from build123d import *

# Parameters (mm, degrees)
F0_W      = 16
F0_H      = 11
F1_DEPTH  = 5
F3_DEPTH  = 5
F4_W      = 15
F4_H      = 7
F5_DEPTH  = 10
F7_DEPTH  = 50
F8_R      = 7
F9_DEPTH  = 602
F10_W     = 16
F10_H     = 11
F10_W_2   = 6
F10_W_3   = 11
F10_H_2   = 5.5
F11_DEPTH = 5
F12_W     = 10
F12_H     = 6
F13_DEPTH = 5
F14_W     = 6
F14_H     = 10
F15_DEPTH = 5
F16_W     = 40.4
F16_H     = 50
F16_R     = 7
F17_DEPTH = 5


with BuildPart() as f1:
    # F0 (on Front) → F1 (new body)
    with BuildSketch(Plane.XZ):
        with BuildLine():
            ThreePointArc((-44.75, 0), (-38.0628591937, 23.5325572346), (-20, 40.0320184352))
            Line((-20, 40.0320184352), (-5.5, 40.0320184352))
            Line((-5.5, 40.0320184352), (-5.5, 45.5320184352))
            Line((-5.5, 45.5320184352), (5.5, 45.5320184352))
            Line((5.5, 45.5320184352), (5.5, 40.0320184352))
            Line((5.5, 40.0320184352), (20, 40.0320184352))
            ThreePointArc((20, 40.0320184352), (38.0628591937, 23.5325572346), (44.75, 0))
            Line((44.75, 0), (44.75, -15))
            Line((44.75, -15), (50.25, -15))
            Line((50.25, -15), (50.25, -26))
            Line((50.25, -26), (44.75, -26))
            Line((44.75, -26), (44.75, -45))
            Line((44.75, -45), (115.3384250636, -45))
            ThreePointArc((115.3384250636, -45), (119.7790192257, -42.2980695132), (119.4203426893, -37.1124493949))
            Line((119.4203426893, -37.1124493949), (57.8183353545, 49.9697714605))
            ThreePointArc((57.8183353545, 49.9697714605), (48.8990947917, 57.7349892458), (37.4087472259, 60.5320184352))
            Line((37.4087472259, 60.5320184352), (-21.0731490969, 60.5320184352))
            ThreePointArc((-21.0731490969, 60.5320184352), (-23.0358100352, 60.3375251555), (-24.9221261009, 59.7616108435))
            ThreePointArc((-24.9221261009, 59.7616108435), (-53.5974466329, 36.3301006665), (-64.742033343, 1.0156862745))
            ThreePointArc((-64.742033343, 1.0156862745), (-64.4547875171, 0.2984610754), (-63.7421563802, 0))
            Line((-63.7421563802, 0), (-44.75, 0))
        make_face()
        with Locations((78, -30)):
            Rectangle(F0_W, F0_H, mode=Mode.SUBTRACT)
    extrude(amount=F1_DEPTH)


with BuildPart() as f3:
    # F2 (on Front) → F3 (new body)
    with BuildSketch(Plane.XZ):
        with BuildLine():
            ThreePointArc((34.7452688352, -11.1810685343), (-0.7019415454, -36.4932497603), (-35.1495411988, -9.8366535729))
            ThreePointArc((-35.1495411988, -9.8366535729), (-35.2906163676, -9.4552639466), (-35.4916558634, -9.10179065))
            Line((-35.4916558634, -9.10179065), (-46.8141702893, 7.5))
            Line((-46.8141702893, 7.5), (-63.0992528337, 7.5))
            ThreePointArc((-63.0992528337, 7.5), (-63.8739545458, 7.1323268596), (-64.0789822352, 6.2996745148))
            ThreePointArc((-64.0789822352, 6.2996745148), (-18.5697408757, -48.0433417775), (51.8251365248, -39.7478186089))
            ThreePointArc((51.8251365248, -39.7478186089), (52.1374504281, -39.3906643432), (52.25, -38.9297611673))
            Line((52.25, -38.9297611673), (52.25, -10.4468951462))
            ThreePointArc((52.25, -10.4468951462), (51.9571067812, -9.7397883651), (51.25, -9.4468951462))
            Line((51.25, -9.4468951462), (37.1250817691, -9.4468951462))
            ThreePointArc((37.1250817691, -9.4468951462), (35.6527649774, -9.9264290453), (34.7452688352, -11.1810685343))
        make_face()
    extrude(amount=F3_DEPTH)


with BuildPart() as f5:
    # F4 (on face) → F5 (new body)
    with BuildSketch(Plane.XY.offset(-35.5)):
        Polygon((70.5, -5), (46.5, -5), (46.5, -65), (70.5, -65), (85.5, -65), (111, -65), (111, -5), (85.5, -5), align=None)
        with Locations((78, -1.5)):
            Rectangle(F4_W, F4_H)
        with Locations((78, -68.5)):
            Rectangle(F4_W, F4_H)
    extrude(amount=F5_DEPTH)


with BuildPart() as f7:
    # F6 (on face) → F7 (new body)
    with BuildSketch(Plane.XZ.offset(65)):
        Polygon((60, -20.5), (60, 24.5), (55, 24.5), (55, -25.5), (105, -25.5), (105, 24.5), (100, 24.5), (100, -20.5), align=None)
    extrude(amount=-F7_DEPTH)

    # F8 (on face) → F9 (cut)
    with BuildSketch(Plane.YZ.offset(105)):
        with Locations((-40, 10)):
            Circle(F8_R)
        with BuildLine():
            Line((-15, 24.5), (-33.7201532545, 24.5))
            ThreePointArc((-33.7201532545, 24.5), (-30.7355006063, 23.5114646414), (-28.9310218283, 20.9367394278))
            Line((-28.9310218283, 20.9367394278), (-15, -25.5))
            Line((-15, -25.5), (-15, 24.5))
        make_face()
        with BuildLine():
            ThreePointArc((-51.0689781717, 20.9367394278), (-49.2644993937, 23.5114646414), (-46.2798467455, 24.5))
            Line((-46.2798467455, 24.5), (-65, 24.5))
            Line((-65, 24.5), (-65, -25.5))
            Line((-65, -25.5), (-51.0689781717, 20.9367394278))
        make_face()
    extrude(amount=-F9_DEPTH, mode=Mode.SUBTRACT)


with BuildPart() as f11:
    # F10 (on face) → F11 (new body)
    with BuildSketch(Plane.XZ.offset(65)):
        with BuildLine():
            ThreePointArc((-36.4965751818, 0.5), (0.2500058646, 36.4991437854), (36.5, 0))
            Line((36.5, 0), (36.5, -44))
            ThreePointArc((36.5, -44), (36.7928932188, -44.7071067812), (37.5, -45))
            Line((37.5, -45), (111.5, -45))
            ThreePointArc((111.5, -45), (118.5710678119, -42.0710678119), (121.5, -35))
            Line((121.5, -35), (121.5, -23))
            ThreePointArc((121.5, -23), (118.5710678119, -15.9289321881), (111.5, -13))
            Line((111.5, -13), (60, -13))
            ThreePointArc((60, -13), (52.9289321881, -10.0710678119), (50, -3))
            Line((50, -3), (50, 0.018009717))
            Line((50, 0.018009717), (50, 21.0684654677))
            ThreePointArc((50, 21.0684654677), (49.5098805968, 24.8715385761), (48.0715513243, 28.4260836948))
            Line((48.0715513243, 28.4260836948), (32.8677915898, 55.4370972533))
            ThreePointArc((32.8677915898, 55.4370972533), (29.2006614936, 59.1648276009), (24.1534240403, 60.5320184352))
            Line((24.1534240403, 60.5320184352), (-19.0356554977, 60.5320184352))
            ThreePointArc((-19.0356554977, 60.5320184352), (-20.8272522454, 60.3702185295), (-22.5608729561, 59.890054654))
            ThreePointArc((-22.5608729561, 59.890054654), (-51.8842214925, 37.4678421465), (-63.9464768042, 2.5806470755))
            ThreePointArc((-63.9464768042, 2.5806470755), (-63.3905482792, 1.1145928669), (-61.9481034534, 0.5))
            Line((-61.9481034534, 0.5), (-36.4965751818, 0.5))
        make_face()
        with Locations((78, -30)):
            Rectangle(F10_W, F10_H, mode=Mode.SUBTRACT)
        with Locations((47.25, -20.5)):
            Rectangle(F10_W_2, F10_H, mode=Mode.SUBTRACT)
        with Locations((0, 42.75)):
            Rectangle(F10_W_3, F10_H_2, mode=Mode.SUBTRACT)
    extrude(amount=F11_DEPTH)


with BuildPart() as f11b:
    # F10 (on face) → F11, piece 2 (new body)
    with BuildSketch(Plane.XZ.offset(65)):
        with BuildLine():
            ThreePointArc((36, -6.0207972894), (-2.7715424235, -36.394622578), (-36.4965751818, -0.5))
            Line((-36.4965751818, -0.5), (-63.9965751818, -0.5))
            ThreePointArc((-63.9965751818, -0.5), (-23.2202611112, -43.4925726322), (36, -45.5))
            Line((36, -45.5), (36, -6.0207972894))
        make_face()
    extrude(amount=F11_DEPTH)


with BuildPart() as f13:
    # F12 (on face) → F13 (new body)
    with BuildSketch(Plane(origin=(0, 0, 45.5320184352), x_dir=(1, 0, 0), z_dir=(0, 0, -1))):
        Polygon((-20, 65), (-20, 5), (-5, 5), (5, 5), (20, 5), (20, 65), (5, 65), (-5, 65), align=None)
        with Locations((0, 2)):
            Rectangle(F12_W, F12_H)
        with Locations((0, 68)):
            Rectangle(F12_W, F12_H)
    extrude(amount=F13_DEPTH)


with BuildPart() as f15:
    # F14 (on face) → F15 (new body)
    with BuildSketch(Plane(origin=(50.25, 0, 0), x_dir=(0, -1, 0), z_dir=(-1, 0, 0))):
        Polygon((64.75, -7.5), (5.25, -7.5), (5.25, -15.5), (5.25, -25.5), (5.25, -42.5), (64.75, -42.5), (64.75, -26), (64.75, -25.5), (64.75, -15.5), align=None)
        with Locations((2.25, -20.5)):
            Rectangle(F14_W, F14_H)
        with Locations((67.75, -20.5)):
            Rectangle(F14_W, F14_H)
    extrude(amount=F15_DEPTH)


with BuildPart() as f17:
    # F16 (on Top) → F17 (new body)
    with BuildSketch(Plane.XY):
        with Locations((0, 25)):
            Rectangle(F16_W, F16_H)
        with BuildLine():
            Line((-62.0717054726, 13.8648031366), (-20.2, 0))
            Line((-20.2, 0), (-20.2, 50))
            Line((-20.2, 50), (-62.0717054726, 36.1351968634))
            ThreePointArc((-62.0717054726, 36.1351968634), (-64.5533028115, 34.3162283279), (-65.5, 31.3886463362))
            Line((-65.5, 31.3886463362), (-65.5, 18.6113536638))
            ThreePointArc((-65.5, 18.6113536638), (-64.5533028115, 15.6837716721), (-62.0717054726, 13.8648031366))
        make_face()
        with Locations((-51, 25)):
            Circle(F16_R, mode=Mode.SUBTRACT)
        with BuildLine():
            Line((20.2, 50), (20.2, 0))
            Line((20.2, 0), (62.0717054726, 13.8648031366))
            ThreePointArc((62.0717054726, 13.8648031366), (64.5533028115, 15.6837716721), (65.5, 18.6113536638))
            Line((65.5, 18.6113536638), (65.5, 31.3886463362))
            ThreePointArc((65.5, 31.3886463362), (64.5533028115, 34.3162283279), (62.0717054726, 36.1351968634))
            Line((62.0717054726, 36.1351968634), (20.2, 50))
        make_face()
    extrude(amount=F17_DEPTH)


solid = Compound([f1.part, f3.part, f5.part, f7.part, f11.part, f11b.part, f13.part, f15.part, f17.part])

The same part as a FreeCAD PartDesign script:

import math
import FreeCAD as App
import Part
import Sketcher
from FreeCAD import Vector


def add_polygon(sketch, points):
    """Adds a closed chain of lines whose ends are joined by coincident constraints."""
    first, n = sketch.GeometryCount, len(points)
    for a, b in zip(points, points[1:] + points[:1]):
        sketch.addGeometry(Part.LineSegment(App.Vector(*a, 0), App.Vector(*b, 0)), False)
    for i in range(n):
        sketch.addConstraint(Sketcher.Constraint("Coincident", first + i, 2, first + (i + 1) % n, 1))

doc = App.newDocument("Part")
body = doc.addObject("PartDesign::Body", "Body")

# Sketch on XZ plane
sketch1 = body.newObject("Sketcher::SketchObject", "Sketch")
sketch1.AttachmentSupport = (doc.getObject("XZ_Plane"), [""])
sketch1.MapMode = "FlatFace"
sketch1.addGeometry(Part.ArcOfCircle(Part.Circle(Vector(0, 0, 0), Vector(0, 0, 1), 44.8), math.radians(117), math.radians(180)), False)  # 0
sketch1.addGeometry(Part.LineSegment(Vector(-20, 40, 0), Vector(-5.5, 40, 0)), False)  # 1
sketch1.addGeometry(Part.LineSegment(Vector(-5.5, 40, 0), Vector(-5.5, 45.5, 0)), False)  # 2
sketch1.addGeometry(Part.LineSegment(Vector(-5.5, 45.5, 0), Vector(5.5, 45.5, 0)), False)  # 3
sketch1.addGeometry(Part.LineSegment(Vector(5.5, 45.5, 0), Vector(5.5, 40, 0)), False)  # 4
sketch1.addGeometry(Part.LineSegment(Vector(5.5, 40, 0), Vector(20, 40, 0)), False)  # 5
sketch1.addGeometry(Part.ArcOfCircle(Part.Circle(Vector(0, 0, 0), Vector(0, 0, 1), 44.8), math.radians(0), math.radians(63)), False)  # 6
sketch1.addGeometry(Part.LineSegment(Vector(44.8, 0, 0), Vector(44.8, -15, 0)), False)  # 7
sketch1.addGeometry(Part.LineSegment(Vector(44.8, -15, 0), Vector(50.2, -15, 0)), False)  # 8
sketch1.addGeometry(Part.LineSegment(Vector(50.2, -15, 0), Vector(50.2, -26, 0)), False)  # 9
sketch1.addGeometry(Part.LineSegment(Vector(50.2, -26, 0), Vector(44.8, -26, 0)), False)  # 10
sketch1.addGeometry(Part.LineSegment(Vector(44.8, -26, 0), Vector(44.8, -45, 0)), False)  # 11
sketch1.addGeometry(Part.LineSegment(Vector(44.8, -45, 0), Vector(115.3, -45, 0)), False)  # 12
sketch1.addGeometry(Part.ArcOfCircle(Part.Circle(Vector(115.3, -40, 0), Vector(0, 0, 1), 5), math.radians(-90), math.radians(35)), False)  # 13
sketch1.addGeometry(Part.LineSegment(Vector(119.4, -37.1, 0), Vector(57.8, 50, 0)), False)  # 14
sketch1.addGeometry(Part.ArcOfCircle(Part.Circle(Vector(37.4, 35.5, 0), Vector(0, 0, 1), 25), math.radians(35), math.radians(90)), False)  # 15
sketch1.addGeometry(Part.LineSegment(Vector(37.4, 60.5, 0), Vector(-21.1, 60.5, 0)), False)  # 16
sketch1.addGeometry(Part.ArcOfCircle(Part.Circle(Vector(-21.1, 50.5, 0), Vector(0, 0, 1), 10), math.radians(90), math.radians(113)), False)  # 17
sketch1.addGeometry(Part.ArcOfCircle(Part.Circle(Vector(0, 0, 0), Vector(0, 0, 1), 64.8), math.radians(113), math.radians(179)), False)  # 18
sketch1.addGeometry(Part.ArcOfCircle(Part.Circle(Vector(-63.7, 1, 0), Vector(0, 0, 1), 1), math.radians(179), math.radians(270)), False)  # 19
sketch1.addGeometry(Part.LineSegment(Vector(-63.7, 0, 0), Vector(-44.8, 0, 0)), False)  # 20
add_polygon(sketch1, [(86, -35.5), (70, -35.5), (70, -24.5), (86, -24.5)])  # lines 21-24
sketch1.addConstraint([
    Sketcher.Constraint("Coincident", 0, 1, 1, 1),
    Sketcher.Constraint("Coincident", 1, 2, 2, 1),
    Sketcher.Constraint("Coincident", 2, 2, 3, 1),
    Sketcher.Constraint("Coincident", 3, 2, 4, 1),
    Sketcher.Constraint("Coincident", 4, 2, 5, 1),
    Sketcher.Constraint("Coincident", 5, 2, 6, 2),
    Sketcher.Constraint("Tangent", 6, 1, 7, 1),
    Sketcher.Constraint("Coincident", 7, 2, 8, 1),
    Sketcher.Constraint("Coincident", 8, 2, 9, 1),
    Sketcher.Constraint("Coincident", 9, 2, 10, 1),
    Sketcher.Constraint("Coincident", 10, 2, 11, 1),
    Sketcher.Constraint("Coincident", 11, 2, 12, 1),
    Sketcher.Constraint("Tangent", 12, 2, 13, 1),
    Sketcher.Constraint("Tangent", 13, 2, 14, 1),
    Sketcher.Constraint("Tangent", 14, 2, 15, 1),
    Sketcher.Constraint("Tangent", 15, 2, 16, 1),
    Sketcher.Constraint("Tangent", 16, 2, 17, 1),
    Sketcher.Constraint("Tangent", 17, 2, 18, 1),
    Sketcher.Constraint("Tangent", 18, 2, 19, 1),
    Sketcher.Constraint("Tangent", 19, 2, 20, 1),
    Sketcher.Constraint("Coincident", 20, 2, 0, 2),
    Sketcher.Constraint("Horizontal", 1),
    Sketcher.Constraint("Vertical", 2),
    Sketcher.Constraint("Horizontal", 3),
    Sketcher.Constraint("Vertical", 4),
    Sketcher.Constraint("Horizontal", 5),
    Sketcher.Constraint("Vertical", 7),
    Sketcher.Constraint("Horizontal", 8),
    Sketcher.Constraint("Vertical", 9),
    Sketcher.Constraint("Horizontal", 10),
    Sketcher.Constraint("Vertical", 11),
    Sketcher.Constraint("Horizontal", 12),
    Sketcher.Constraint("Horizontal", 16),
    Sketcher.Constraint("Horizontal", 20),
    Sketcher.Constraint("Horizontal", 21),
    Sketcher.Constraint("Vertical", 22),
    Sketcher.Constraint("Horizontal", 23),
    Sketcher.Constraint("Vertical", 24),
    Sketcher.Constraint("Coincident", 0, 3, -1, 1),
    Sketcher.Constraint("Coincident", 6, 3, -1, 1),
    Sketcher.Constraint("Coincident", 18, 3, -1, 1),
    Sketcher.Constraint("Equal", 0, 6),
    Sketcher.Constraint("Symmetric", 1, 2, 4, 2, -2),
    Sketcher.Constraint("PointOnObject", 19, 2, -1),
    Sketcher.Constraint("Vertical", 7, 2, 10, 2),
    Sketcher.Constraint("Equal", 10, 2),
    Sketcher.Constraint("Equal", 3, 9),
    Sketcher.Constraint("Equal", 9, 22),
    Sketcher.Constraint("Radius", 13, 5.0),
    Sketcher.Constraint("Radius", 15, 25.0),
    Sketcher.Constraint("Radius", 17, 10.0),
    Sketcher.Constraint("Radius", 19, 1.0),
    Sketcher.Constraint("DistanceX", 3, 1, 3, 2, 11.0),
    Sketcher.Constraint("DistanceX", 21, 2, 21, 1, 16.0),
    Sketcher.Constraint("DistanceY", 7, 2, 7, 1, 15.0),
    Sketcher.Constraint("DistanceY", 11, 2, 11, 1, 19.0),
    Sketcher.Constraint("Radius", 0, 44.75),
    Sketcher.Constraint("Radius", 18, 64.75),
    Sketcher.Constraint("DistanceX", 1, 1, 1, 2, 14.5),
    Sketcher.Constraint("DistanceX", 8, 1, 8, 2, 5.5),
    Sketcher.Constraint("DistanceX", -1, 1, 21, 2, 70.0),
    Sketcher.Constraint("DistanceY", 2, 2, 17, 3, 5.0),
    Sketcher.Constraint("DistanceY", 21, 2, -1, 1, 35.5),
    Sketcher.Constraint("DistanceX", 12, 1, 12, 2, 70.588425),
    Sketcher.Constraint("DistanceX", 16, 2, 16, 1, 58.481896),
])
pad1 = body.newObject("PartDesign::Pad", "Pad")
pad1.Profile = sketch1
pad1.Length = 5
body2 = doc.addObject("PartDesign::Body", "Body001")

# Sketch on XZ plane
sketch2 = body2.newObject("Sketcher::SketchObject", "Sketch001")
sketch2.AttachmentSupport = (doc.getObject("XZ_Plane001"), [""])
sketch2.MapMode = "FlatFace"
sketch2.addGeometry([
    Part.ArcOfCircle(Part.Circle(Vector(0, 0, 0), Vector(0, 0, 1), 36.5), math.radians(-164), math.radians(-18)),  # 0
    Part.ArcOfCircle(Part.Circle(Vector(-37.6, -10.5, 0), Vector(0, 0, 1), 2.5), math.radians(15.63), math.radians(34.29)),  # 1
    Part.LineSegment(Vector(-35.5, -9.1, 0), Vector(-46.8, 7.5, 0)),  # 2
    Part.LineSegment(Vector(-46.8, 7.5, 0), Vector(-63.1, 7.5, 0)),  # 3
    Part.ArcOfCircle(Part.Circle(Vector(-63.1, 6.5, 0), Vector(0, 0, 1), 1), math.radians(90), math.radians(192)),  # 4
    Part.ArcOfCircle(Part.Circle(Vector(9, 21.2, 0), Vector(0, 0, 1), 74.5), math.radians(-168), math.radians(-55)),  # 5
    Part.ArcOfCircle(Part.Circle(Vector(51.2, -38.9, 0), Vector(0, 0, 1), 1), math.radians(-55), math.radians(0)),  # 6
    Part.LineSegment(Vector(52.2, -38.9, 0), Vector(52.2, -10.4, 0)),  # 7
    Part.ArcOfCircle(Part.Circle(Vector(51.2, -10.4, 0), Vector(0, 0, 1), 1), math.radians(0), math.radians(90)),  # 8
    Part.LineSegment(Vector(51.2, -9.4, 0), Vector(37.1, -9.4, 0)),  # 9
    Part.ArcOfCircle(Part.Circle(Vector(37.1, -11.9, 0), Vector(0, 0, 1), 2.5), math.radians(90), math.radians(162)),  # 10
], False)
sketch2.addConstraint([
    Sketcher.Constraint("Tangent", 0, 1, 1, 1),
    Sketcher.Constraint("Tangent", 1, 2, 2, 1),
    Sketcher.Constraint("Coincident", 2, 2, 3, 1),
    Sketcher.Constraint("Tangent", 3, 2, 4, 1),
    Sketcher.Constraint("Tangent", 4, 2, 5, 1),
    Sketcher.Constraint("Tangent", 5, 2, 6, 1),
    Sketcher.Constraint("Tangent", 6, 2, 7, 1),
    Sketcher.Constraint("Tangent", 7, 2, 8, 1),
    Sketcher.Constraint("Tangent", 8, 2, 9, 1),
    Sketcher.Constraint("Tangent", 9, 2, 10, 1),
    Sketcher.Constraint("Tangent", 10, 2, 0, 2),
    Sketcher.Constraint("Horizontal", 3),
    Sketcher.Constraint("Vertical", 7),
    Sketcher.Constraint("Horizontal", 9),
    Sketcher.Constraint("Coincident", 0, 3, -1, 1),
    Sketcher.Constraint("Equal", 4, 6),
    Sketcher.Constraint("Equal", 6, 8),
    Sketcher.Constraint("Equal", 1, 10),
    Sketcher.Constraint("Radius", 4, 1.0),
    Sketcher.Constraint("Radius", 0, 36.5),
    Sketcher.Constraint("Radius", 1, 2.5),
    Sketcher.Constraint("DistanceY", -1, 1, 4, 3, 6.5),
    Sketcher.Constraint("DistanceX", -1, 1, 6, 3, 51.25),
    Sketcher.Constraint("Radius", 5, 74.542838),
    Sketcher.Constraint("DistanceX", 9, 2, 9, 1, 14.124918),
    Sketcher.Constraint("DistanceY", 1, 3, 5, 3, 31.742902),
    Sketcher.Constraint("DistanceY", 8, 3, 5, 3, 31.6794),
    Sketcher.Constraint("DistanceX", 3, 2, 3, 1, 16.285083),
    Sketcher.Constraint("DistanceY", 7, 1, 7, 2, 28.482866),
])
pad2 = body2.newObject("PartDesign::Pad", "Pad001")
pad2.Profile = sketch2
pad2.Length = 5
body3 = doc.addObject("PartDesign::Body", "Body002")

# Sketch on XY plane
sketch3 = body3.newObject("Sketcher::SketchObject", "Sketch002")
sketch3.AttachmentSupport = (doc.getObject("XY_Plane002"), [""])
sketch3.MapMode = "FlatFace"
sketch3.AttachmentOffset = App.Placement(Vector(0, 0, -35.5), App.Rotation())
add_polygon(sketch3, [(46, -5), (46, -65), (70, -65), (70, -72), (86, -72), (86, -65), (111, -65), (111, -5), (86, -5), (86, 2), (70, 2), (70, -5)])  # lines 0-11
sketch3.addConstraint([
    Sketcher.Constraint("Vertical", 0),
    Sketcher.Constraint("Horizontal", 1),
    Sketcher.Constraint("Vertical", 2),
    Sketcher.Constraint("Horizontal", 3),
    Sketcher.Constraint("Vertical", 4),
    Sketcher.Constraint("Horizontal", 5),
    Sketcher.Constraint("Vertical", 6),
    Sketcher.Constraint("Horizontal", 7),
    Sketcher.Constraint("Vertical", 8),
    Sketcher.Constraint("Horizontal", 9),
    Sketcher.Constraint("Vertical", 10),
    Sketcher.Constraint("Horizontal", 11),
    Sketcher.Constraint("Horizontal", 1, 2, 4, 2),
    Sketcher.Constraint("Horizontal", 7, 2, 10, 2),
    Sketcher.Constraint("Vertical", 4, 2, 7, 2),
    Sketcher.Constraint("Vertical", 2, 2, 9, 2),
    Sketcher.Constraint("Equal", 4, 8),
    Sketcher.Constraint("DistanceX", 1, 1, 1, 2, 24.0),
    Sketcher.Constraint("DistanceX", 3, 1, 3, 2, 15.0),
    Sketcher.Constraint("DistanceY", 0, 2, 0, 1, 60.0),
    Sketcher.Constraint("DistanceY", 2, 2, 2, 1, 7.0),
    Sketcher.Constraint("DistanceX", 5, 1, 5, 2, 25.5),
    Sketcher.Constraint("DistanceY", 0, 2, -1, 1, 65.0),
    Sketcher.Constraint("DistanceX", -1, 1, 5, 2, 111.0),
])
pad3 = body3.newObject("PartDesign::Pad", "Pad002")
pad3.Profile = sketch3
pad3.Length = 10
body4 = doc.addObject("PartDesign::Body", "Body003")

# Sketch on XZ plane
sketch4 = body4.newObject("Sketcher::SketchObject", "Sketch003")
sketch4.AttachmentSupport = (doc.getObject("XZ_Plane003"), [""])
sketch4.MapMode = "FlatFace"
sketch4.AttachmentOffset = App.Placement(Vector(0, 0, 65), App.Rotation())
add_polygon(sketch4, [(60, -20), (60, 24), (55, 24), (55, -26), (105, -26), (105, 24), (100, 24), (100, -20)])  # lines 0-7
sketch4.addConstraint([
    Sketcher.Constraint("Vertical", 0),
    Sketcher.Constraint("Horizontal", 1),
    Sketcher.Constraint("Vertical", 2),
    Sketcher.Constraint("Horizontal", 3),
    Sketcher.Constraint("Vertical", 4),
    Sketcher.Constraint("Horizontal", 5),
    Sketcher.Constraint("Vertical", 6),
    Sketcher.Constraint("Horizontal", 7),
    Sketcher.Constraint("Horizontal", 1, 2, 4, 2),
    Sketcher.Constraint("Equal", 1, 5),
    Sketcher.Constraint("Equal", 3, 2),
    Sketcher.Constraint("DistanceX", 1, 2, 1, 1, 5.0),
    Sketcher.Constraint("DistanceX", 3, 1, 3, 2, 50.0),
    Sketcher.Constraint("DistanceY", 0, 1, 0, 2, 45.0),
    Sketcher.Constraint("DistanceX", -1, 1, 0, 2, 60.0),
    Sketcher.Constraint("DistanceY", -1, 1, 0, 2, 24.5),
])
pad4 = body4.newObject("PartDesign::Pad", "Pad003")
pad4.Profile = sketch4
pad4.Length = 50
pad4.Reversed = True

# Sketch on YZ plane
sketch5 = body4.newObject("Sketcher::SketchObject", "Sketch004")
sketch5.AttachmentSupport = (doc.getObject("YZ_Plane003"), [""])
sketch5.MapMode = "FlatFace"
sketch5.AttachmentOffset = App.Placement(Vector(0, 0, 105), App.Rotation())
sketch5.addGeometry([
    Part.Circle(Vector(-40, 10, 0), Vector(0, 0, 1), 7),  # 0
    Part.LineSegment(Vector(-15, 24, 0), Vector(-34, 24, 0)),  # 1
    Part.ArcOfCircle(Part.Circle(Vector(-34, 20, 0), Vector(0, 0, 1), 5), math.radians(17), math.radians(90)),  # 2
    Part.LineSegment(Vector(-29, 21, 0), Vector(-15, -26, 0)),  # 3
    Part.LineSegment(Vector(-15, -26, 0), Vector(-15, 24, 0)),  # 4
    Part.ArcOfCircle(Part.Circle(Vector(-46, 20, 0), Vector(0, 0, 1), 5), math.radians(90), math.radians(163)),  # 5
    Part.LineSegment(Vector(-46, 24, 0), Vector(-65, 24, 0)),  # 6
    Part.LineSegment(Vector(-65, 24, 0), Vector(-65, -26, 0)),  # 7
    Part.LineSegment(Vector(-65, -26, 0), Vector(-51, 21, 0)),  # 8
], False)
sketch5.addConstraint([
    Sketcher.Constraint("Tangent", 1, 2, 2, 2),
    Sketcher.Constraint("Tangent", 2, 1, 3, 1),
    Sketcher.Constraint("Coincident", 3, 2, 4, 1),
    Sketcher.Constraint("Coincident", 4, 2, 1, 1),
    Sketcher.Constraint("Tangent", 5, 1, 6, 1),
    Sketcher.Constraint("Coincident", 6, 2, 7, 1),
    Sketcher.Constraint("Coincident", 7, 2, 8, 1),
    Sketcher.Constraint("Tangent", 8, 2, 5, 2),
    Sketcher.Constraint("Horizontal", 1),
    Sketcher.Constraint("Vertical", 4),
    Sketcher.Constraint("Horizontal", 6),
    Sketcher.Constraint("Vertical", 7),
    Sketcher.Constraint("Equal", 2, 5),
    Sketcher.Constraint("Horizontal", 2, 3, 5, 3),
    Sketcher.Constraint("Horizontal", 3, 2, 7, 2),
    Sketcher.Constraint("Horizontal", 2, 1, 8, 2),
    Sketcher.Constraint("Diameter", 0, 14.0),
    Sketcher.Constraint("Radius", 2, 5.0),
    Sketcher.Constraint("DistanceY", 4, 1, 4, 2, 50.0),
    Sketcher.Constraint("DistanceX", 0, 3, -1, 1, 40.0),
    Sketcher.Constraint("DistanceY", -1, 1, 0, 3, 10.0),
    Sketcher.Constraint("DistanceX", 3, 2, -1, 1, 15.0),
    Sketcher.Constraint("DistanceX", 6, 2, -1, 1, 65.0),
    Sketcher.Constraint("DistanceY", -1, 1, 2, 3, 19.5),
    Sketcher.Constraint("Distance", 3, 48.481379),
])
pocket1 = body4.newObject("PartDesign::Pocket", "Pocket")
pocket1.Profile = sketch5
pocket1.Length = 602
body5 = doc.addObject("PartDesign::Body", "Body004")

# Sketch on XZ plane
sketch6 = body5.newObject("Sketcher::SketchObject", "Sketch005")
sketch6.AttachmentSupport = (doc.getObject("XZ_Plane004"), [""])
sketch6.MapMode = "FlatFace"
sketch6.AttachmentOffset = App.Placement(Vector(0, 0, 65), App.Rotation())
sketch6.addGeometry(Part.ArcOfCircle(Part.Circle(Vector(0, 0, 0), Vector(0, 0, 1), 36.5), math.radians(0), math.radians(179)), False)  # 0
sketch6.addGeometry(Part.LineSegment(Vector(36.5, 0, 0), Vector(36.5, -44, 0)), False)  # 1
sketch6.addGeometry(Part.ArcOfCircle(Part.Circle(Vector(37.5, -44, 0), Vector(0, 0, 1), 1), math.radians(180), math.radians(270)), False)  # 2
sketch6.addGeometry(Part.LineSegment(Vector(37.5, -45, 0), Vector(111.5, -45, 0)), False)  # 3
sketch6.addGeometry(Part.ArcOfCircle(Part.Circle(Vector(111.5, -35, 0), Vector(0, 0, 1), 10), math.radians(-90), math.radians(0)), False)  # 4
sketch6.addGeometry(Part.LineSegment(Vector(121.5, -35, 0), Vector(121.5, -23, 0)), False)  # 5
sketch6.addGeometry(Part.ArcOfCircle(Part.Circle(Vector(111.5, -23, 0), Vector(0, 0, 1), 10), math.radians(0), math.radians(90)), False)  # 6
sketch6.addGeometry(Part.LineSegment(Vector(111.5, -13, 0), Vector(60, -13, 0)), False)  # 7
sketch6.addGeometry(Part.ArcOfCircle(Part.Circle(Vector(60, -3, 0), Vector(0, 0, 1), 10), math.radians(180), math.radians(270)), False)  # 8
sketch6.addGeometry(Part.LineSegment(Vector(50, -3, 0), Vector(50, 21.1, 0)), False)  # 9
sketch6.addGeometry(Part.ArcOfCircle(Part.Circle(Vector(35, 21.1, 0), Vector(0, 0, 1), 15), math.radians(0), math.radians(29)), False)  # 10
sketch6.addGeometry(Part.LineSegment(Vector(48.1, 28.4, 0), Vector(32.9, 55.4, 0)), False)  # 11
sketch6.addGeometry(Part.ArcOfCircle(Part.Circle(Vector(24.2, 50.5, 0), Vector(0, 0, 1), 10), math.radians(29), math.radians(90)), False)  # 12
sketch6.addGeometry(Part.LineSegment(Vector(24.2, 60.5, 0), Vector(-19, 60.5, 0)), False)  # 13
sketch6.addGeometry(Part.ArcOfCircle(Part.Circle(Vector(-19, 50.5, 0), Vector(0, 0, 1), 10), math.radians(90), math.radians(111)), False)  # 14
sketch6.addGeometry(Part.ArcOfCircle(Part.Circle(Vector(0, 0, 0), Vector(0, 0, 1), 64), math.radians(111), math.radians(178)), False)  # 15
sketch6.addGeometry(Part.ArcOfCircle(Part.Circle(Vector(-61.9, 2.5, 0), Vector(0, 0, 1), 2), math.radians(178), math.radians(270)), False)  # 16
sketch6.addGeometry(Part.LineSegment(Vector(-61.9, 0.5, 0), Vector(-36.5, 0.5, 0)), False)  # 17
add_polygon(sketch6, [(50.2, -26), (44.2, -26), (44.2, -15), (50.2, -15)])  # lines 18-21
add_polygon(sketch6, [(86, -35.5), (70, -35.5), (70, -24.5), (86, -24.5)])  # lines 22-25
add_polygon(sketch6, [(5.5, 40), (-5.5, 40), (-5.5, 45.5), (5.5, 45.5)])  # lines 26-29
sketch6.addConstraint([
    Sketcher.Constraint("Tangent", 0, 1, 1, 1),
    Sketcher.Constraint("Tangent", 1, 2, 2, 1),
    Sketcher.Constraint("Tangent", 2, 2, 3, 1),
    Sketcher.Constraint("Tangent", 3, 2, 4, 1),
    Sketcher.Constraint("Tangent", 4, 2, 5, 1),
    Sketcher.Constraint("Tangent", 5, 2, 6, 1),
    Sketcher.Constraint("Tangent", 6, 2, 7, 1),
    Sketcher.Constraint("Tangent", 7, 2, 8, 2),
    Sketcher.Constraint("Tangent", 8, 1, 9, 1),
    Sketcher.Constraint("Tangent", 9, 2, 10, 1),
    Sketcher.Constraint("Tangent", 10, 2, 11, 1),
    Sketcher.Constraint("Tangent", 11, 2, 12, 1),
    Sketcher.Constraint("Tangent", 12, 2, 13, 1),
    Sketcher.Constraint("Tangent", 13, 2, 14, 1),
    Sketcher.Constraint("Tangent", 14, 2, 15, 1),
    Sketcher.Constraint("Tangent", 15, 2, 16, 1),
    Sketcher.Constraint("Tangent", 16, 2, 17, 1),
    Sketcher.Constraint("Coincident", 17, 2, 0, 2),
    Sketcher.Constraint("Vertical", 1),
    Sketcher.Constraint("Horizontal", 3),
    Sketcher.Constraint("Vertical", 5),
    Sketcher.Constraint("Horizontal", 7),
    Sketcher.Constraint("Vertical", 9),
    Sketcher.Constraint("Horizontal", 13),
    Sketcher.Constraint("Horizontal", 17),
    Sketcher.Constraint("Horizontal", 18),
    Sketcher.Constraint("Vertical", 19),
    Sketcher.Constraint("Horizontal", 20),
    Sketcher.Constraint("Vertical", 21),
    Sketcher.Constraint("Horizontal", 22),
    Sketcher.Constraint("Vertical", 23),
    Sketcher.Constraint("Horizontal", 24),
    Sketcher.Constraint("Vertical", 25),
    Sketcher.Constraint("Horizontal", 26),
    Sketcher.Constraint("Vertical", 27),
    Sketcher.Constraint("Horizontal", 28),
    Sketcher.Constraint("Vertical", 29),
    Sketcher.Constraint("Coincident", 0, 3, -1, 1),
    Sketcher.Constraint("Coincident", 15, 3, -1, 1),
    Sketcher.Constraint("Equal", 4, 6),
    Sketcher.Constraint("Equal", 6, 8),
    Sketcher.Constraint("Equal", 8, 12),
    Sketcher.Constraint("Equal", 12, 14),
    Sketcher.Constraint("Equal", 28, 19),
    Sketcher.Constraint("Equal", 21, 23),
    Sketcher.Constraint("Radius", 2, 1.0),
    Sketcher.Constraint("Radius", 4, 10.0),
    Sketcher.Constraint("Radius", 10, 15.0),
    Sketcher.Constraint("Radius", 16, 2.0),
    Sketcher.Constraint("Radius", 0, 36.5),
    Sketcher.Constraint("DistanceX", 3, 1, 3, 2, 74.0),
    Sketcher.Constraint("DistanceX", 18, 2, 18, 1, 6.0),
    Sketcher.Constraint("DistanceX", 22, 2, 22, 1, 16.0),
    Sketcher.Constraint("DistanceX", 26, 2, 26, 1, 11.0),
    Sketcher.Constraint("DistanceY", 1, 2, 1, 1, 44.0),
    Sketcher.Constraint("DistanceY", 5, 1, 5, 2, 12.0),
    Sketcher.Constraint("DistanceX", 7, 2, 7, 1, 51.5),
    Sketcher.Constraint("DistanceY", 27, 1, 27, 2, 5.5),
    Sketcher.Constraint("DistanceY", 18, 2, -1, 1, 26.0),
    Sketcher.Constraint("DistanceX", -1, 1, 22, 2, 70.0),
    Sketcher.Constraint("DistanceY", -1, 1, 26, 2, 40.0),
    Sketcher.Constraint("DistanceY", -1, 1, 16, 3, 2.5),
    Sketcher.Constraint("DistanceY", 22, 2, -1, 1, 35.5),
    Sketcher.Constraint("DistanceX", 26, 2, -1, 1, 5.5),
    Sketcher.Constraint("DistanceX", -1, 1, 18, 2, 44.25),
    Sketcher.Constraint("Radius", 15, 63.998528),
    Sketcher.Constraint("DistanceX", 13, 2, 13, 1, 43.18908),
    Sketcher.Constraint("DistanceY", 9, 1, 9, 2, 24.068465),
    Sketcher.Constraint("DistanceY", -1, 1, 12, 3, 50.532018),
])
pad5 = body5.newObject("PartDesign::Pad", "Pad004")
pad5.Profile = sketch6
pad5.Length = 5
body6 = doc.addObject("PartDesign::Body", "Body005")

# Sketch on XZ plane
sketch7 = body6.newObject("Sketcher::SketchObject", "Sketch006")
sketch7.AttachmentSupport = (doc.getObject("XZ_Plane005"), [""])
sketch7.MapMode = "FlatFace"
sketch7.AttachmentOffset = App.Placement(Vector(0, 0, 65), App.Rotation())
sketch7.addGeometry([
    Part.ArcOfCircle(Part.Circle(Vector(0, 0, 0), Vector(0, 0, 1), 36), math.radians(-179), math.radians(-9)),
    Part.LineSegment(Vector(-36, 0, 0), Vector(-64, 0, 0)),
    Part.ArcOfCircle(Part.Circle(Vector(9, 28, 0), Vector(0, 0, 1), 78), math.radians(-159), math.radians(-70)),
    Part.LineSegment(Vector(36, -46, 0), Vector(36, -6, 0)),
], False)
sketch7.addConstraint([
    Sketcher.Constraint("Coincident", 0, 1, 1, 1),
    Sketcher.Constraint("Coincident", 1, 2, 2, 1),
    Sketcher.Constraint("Coincident", 2, 2, 3, 1),
    Sketcher.Constraint("Coincident", 3, 2, 0, 2),
    Sketcher.Constraint("Horizontal", 1),
    Sketcher.Constraint("Vertical", 3),
    Sketcher.Constraint("Coincident", 0, 3, -1, 1),
    Sketcher.Constraint("Radius", 0, 36.5),
    Sketcher.Constraint("DistanceX", 1, 2, 1, 1, 27.5),
    Sketcher.Constraint("DistanceX", -1, 1, 2, 2, 36.0),
    Sketcher.Constraint("DistanceY", 2, 2, 0, 1, 45.0),
    Sketcher.Constraint("DistanceY", 0, 1, -1, 1, 0.5),
    Sketcher.Constraint("Radius", 2, 78.12101),
])
pad6 = body6.newObject("PartDesign::Pad", "Pad005")
pad6.Profile = sketch7
pad6.Length = 5
body7 = doc.addObject("PartDesign::Body", "Body006")

# Sketch on XY plane
sketch8 = body7.newObject("Sketcher::SketchObject", "Sketch007")
sketch8.AttachmentSupport = (doc.getObject("XY_Plane006"), [""])
sketch8.MapMode = "FlatFace"
sketch8.AttachmentOffset = App.Placement(Vector(0, 0, 45.532018), App.Rotation())
add_polygon(sketch8, [(-20, -65), (-20, -5), (-5, -5), (-5, 1), (5, 1), (5, -5), (20, -5), (20, -65), (5, -65), (5, -71), (-5, -71), (-5, -65)])  # lines 0-11
sketch8.addConstraint([
    Sketcher.Constraint("Vertical", 0),
    Sketcher.Constraint("Horizontal", 1),
    Sketcher.Constraint("Vertical", 2),
    Sketcher.Constraint("Horizontal", 3),
    Sketcher.Constraint("Vertical", 4),
    Sketcher.Constraint("Horizontal", 5),
    Sketcher.Constraint("Vertical", 6),
    Sketcher.Constraint("Horizontal", 7),
    Sketcher.Constraint("Vertical", 8),
    Sketcher.Constraint("Horizontal", 9),
    Sketcher.Constraint("Vertical", 10),
    Sketcher.Constraint("Horizontal", 11),
    Sketcher.Constraint("Symmetric", 1, 2, 4, 2, -2),
    Sketcher.Constraint("Symmetric", 7, 2, 10, 2, -2),
    Sketcher.Constraint("Vertical", 4, 2, 7, 2),
    Sketcher.Constraint("Equal", 1, 5),
    Sketcher.Constraint("Equal", 4, 8),
    Sketcher.Constraint("DistanceX", 1, 1, 1, 2, 15.0),
    Sketcher.Constraint("DistanceX", 3, 1, 3, 2, 10.0),
    Sketcher.Constraint("DistanceY", 0, 1, 0, 2, 60.0),
    Sketcher.Constraint("DistanceY", 2, 1, 2, 2, 6.0),
    Sketcher.Constraint("DistanceY", 0, 2, -1, 1, 5.0),
])
pad7 = body7.newObject("PartDesign::Pad", "Pad006")
pad7.Profile = sketch8
pad7.Length = 5
pad7.Reversed = True
body8 = doc.addObject("PartDesign::Body", "Body007")

# Sketch on YZ plane
sketch9 = body8.newObject("Sketcher::SketchObject", "Sketch008")
sketch9.AttachmentSupport = (doc.getObject("YZ_Plane007"), [""])
sketch9.MapMode = "FlatFace"
sketch9.AttachmentOffset = App.Placement(Vector(0, 0, 50.25), App.Rotation())
add_polygon(sketch9, [(-65, -8), (-5, -8), (-5, -16), (1, -16), (1, -26), (-5, -26), (-5, -42), (-65, -42), (-65, -26), (-71, -26), (-71, -16), (-65, -16)])  # lines 0-11
sketch9.addConstraint([
    Sketcher.Constraint("Horizontal", 0),
    Sketcher.Constraint("Vertical", 1),
    Sketcher.Constraint("Horizontal", 2),
    Sketcher.Constraint("Vertical", 3),
    Sketcher.Constraint("Horizontal", 4),
    Sketcher.Constraint("Vertical", 5),
    Sketcher.Constraint("Horizontal", 6),
    Sketcher.Constraint("Vertical", 7),
    Sketcher.Constraint("Horizontal", 8),
    Sketcher.Constraint("Vertical", 9),
    Sketcher.Constraint("Horizontal", 10),
    Sketcher.Constraint("Vertical", 11),
    Sketcher.Constraint("Horizontal", 4, 2, 7, 2),
    Sketcher.Constraint("Horizontal", 2, 2, 9, 2),
    Sketcher.Constraint("Vertical", 1, 2, 4, 2),
    Sketcher.Constraint("Vertical", 7, 2, 10, 2),
    Sketcher.Constraint("Equal", 4, 8),
    Sketcher.Constraint("DistanceX", 2, 1, 2, 2, 6.0),
    Sketcher.Constraint("DistanceY", 1, 2, 1, 1, 8.0),
    Sketcher.Constraint("DistanceY", 3, 2, 3, 1, 10.0),
    Sketcher.Constraint("DistanceY", 5, 2, 5, 1, 17.0),
    Sketcher.Constraint("DistanceX", 0, 1, 0, 2, 59.5),
    Sketcher.Constraint("DistanceY", 0, 2, -1, 1, 7.5),
    Sketcher.Constraint("DistanceX", 0, 2, -1, 1, 5.25),
])
pad8 = body8.newObject("PartDesign::Pad", "Pad007")
pad8.Profile = sketch9
pad8.Length = 5
pad8.Reversed = True
body9 = doc.addObject("PartDesign::Body", "Body008")

# Sketch on XY plane
sketch10 = body9.newObject("Sketcher::SketchObject", "Sketch009")
sketch10.AttachmentSupport = (doc.getObject("XY_Plane008"), [""])
sketch10.MapMode = "FlatFace"
sketch10.addGeometry([
    Part.LineSegment(Vector(-20, 0, 0), Vector(20, 0, 0)),  # 0
    Part.LineSegment(Vector(20, 0, 0), Vector(62, 14, 0)),  # 1
    Part.ArcOfCircle(Part.Circle(Vector(60, 19, 0), Vector(0, 0, 1), 5), math.radians(-72), math.radians(0)),  # 2
    Part.LineSegment(Vector(66, 19, 0), Vector(66, 31, 0)),  # 3
    Part.ArcOfCircle(Part.Circle(Vector(60, 31, 0), Vector(0, 0, 1), 5), math.radians(0), math.radians(72)),  # 4
    Part.LineSegment(Vector(62, 36, 0), Vector(20, 50, 0)),  # 5
    Part.LineSegment(Vector(20, 50, 0), Vector(-20, 50, 0)),  # 6
    Part.LineSegment(Vector(-20, 50, 0), Vector(-62, 36, 0)),  # 7
    Part.ArcOfCircle(Part.Circle(Vector(-60, 31, 0), Vector(0, 0, 1), 5), math.radians(108), math.radians(180)),  # 8
    Part.LineSegment(Vector(-66, 31, 0), Vector(-66, 19, 0)),  # 9
    Part.ArcOfCircle(Part.Circle(Vector(-60, 19, 0), Vector(0, 0, 1), 5), math.radians(180), math.radians(252)),  # 10
    Part.LineSegment(Vector(-62, 14, 0), Vector(-20, 0, 0)),  # 11
    Part.Circle(Vector(-51, 25, 0), Vector(0, 0, 1), 7),  # 12
], False)
sketch10.addConstraint([
    Sketcher.Constraint("Coincident", 0, 2, 1, 1),
    Sketcher.Constraint("Tangent", 1, 2, 2, 1),
    Sketcher.Constraint("Tangent", 2, 2, 3, 1),
    Sketcher.Constraint("Tangent", 3, 2, 4, 1),
    Sketcher.Constraint("Tangent", 4, 2, 5, 1),
    Sketcher.Constraint("Coincident", 5, 2, 6, 1),
    Sketcher.Constraint("Coincident", 6, 2, 7, 1),
    Sketcher.Constraint("Tangent", 7, 2, 8, 1),
    Sketcher.Constraint("Tangent", 8, 2, 9, 1),
    Sketcher.Constraint("Tangent", 9, 2, 10, 1),
    Sketcher.Constraint("Tangent", 10, 2, 11, 1),
    Sketcher.Constraint("Coincident", 11, 2, 0, 1),
    Sketcher.Constraint("Horizontal", 0),
    Sketcher.Constraint("Vertical", 3),
    Sketcher.Constraint("Horizontal", 6),
    Sketcher.Constraint("Vertical", 9),
    Sketcher.Constraint("Equal", 2, 4),
    Sketcher.Constraint("Equal", 4, 8),
    Sketcher.Constraint("Equal", 8, 10),
    Sketcher.Constraint("Symmetric", 0, 2, 11, 2, -1, 1),
    Sketcher.Constraint("Symmetric", 4, 3, 8, 3, -2),
    Sketcher.Constraint("Parallel", 1, 7),
    Sketcher.Constraint("Parallel", 5, 11),
    Sketcher.Constraint("Horizontal", 2, 3, 10, 3),
    Sketcher.Constraint("Vertical", 0, 2, 5, 2),
    Sketcher.Constraint("Diameter", 12, 14.0),
    Sketcher.Constraint("Radius", 2, 5.0),
    Sketcher.Constraint("DistanceX", 0, 1, 0, 2, 40.4),
    Sketcher.Constraint("DistanceX", 12, 3, -1, 1, 51.0),
    Sketcher.Constraint("DistanceY", -1, 1, 12, 3, 25.0),
    Sketcher.Constraint("DistanceY", -1, 1, 5, 2, 50.0),
    Sketcher.Constraint("DistanceX", 8, 3, 4, 3, 121.0),
    Sketcher.Constraint("Distance", 1, 44.107511),
])
pad9 = body9.newObject("PartDesign::Pad", "Pad008")
pad9.Profile = sketch10
pad9.Length = 5

doc.recompute()
